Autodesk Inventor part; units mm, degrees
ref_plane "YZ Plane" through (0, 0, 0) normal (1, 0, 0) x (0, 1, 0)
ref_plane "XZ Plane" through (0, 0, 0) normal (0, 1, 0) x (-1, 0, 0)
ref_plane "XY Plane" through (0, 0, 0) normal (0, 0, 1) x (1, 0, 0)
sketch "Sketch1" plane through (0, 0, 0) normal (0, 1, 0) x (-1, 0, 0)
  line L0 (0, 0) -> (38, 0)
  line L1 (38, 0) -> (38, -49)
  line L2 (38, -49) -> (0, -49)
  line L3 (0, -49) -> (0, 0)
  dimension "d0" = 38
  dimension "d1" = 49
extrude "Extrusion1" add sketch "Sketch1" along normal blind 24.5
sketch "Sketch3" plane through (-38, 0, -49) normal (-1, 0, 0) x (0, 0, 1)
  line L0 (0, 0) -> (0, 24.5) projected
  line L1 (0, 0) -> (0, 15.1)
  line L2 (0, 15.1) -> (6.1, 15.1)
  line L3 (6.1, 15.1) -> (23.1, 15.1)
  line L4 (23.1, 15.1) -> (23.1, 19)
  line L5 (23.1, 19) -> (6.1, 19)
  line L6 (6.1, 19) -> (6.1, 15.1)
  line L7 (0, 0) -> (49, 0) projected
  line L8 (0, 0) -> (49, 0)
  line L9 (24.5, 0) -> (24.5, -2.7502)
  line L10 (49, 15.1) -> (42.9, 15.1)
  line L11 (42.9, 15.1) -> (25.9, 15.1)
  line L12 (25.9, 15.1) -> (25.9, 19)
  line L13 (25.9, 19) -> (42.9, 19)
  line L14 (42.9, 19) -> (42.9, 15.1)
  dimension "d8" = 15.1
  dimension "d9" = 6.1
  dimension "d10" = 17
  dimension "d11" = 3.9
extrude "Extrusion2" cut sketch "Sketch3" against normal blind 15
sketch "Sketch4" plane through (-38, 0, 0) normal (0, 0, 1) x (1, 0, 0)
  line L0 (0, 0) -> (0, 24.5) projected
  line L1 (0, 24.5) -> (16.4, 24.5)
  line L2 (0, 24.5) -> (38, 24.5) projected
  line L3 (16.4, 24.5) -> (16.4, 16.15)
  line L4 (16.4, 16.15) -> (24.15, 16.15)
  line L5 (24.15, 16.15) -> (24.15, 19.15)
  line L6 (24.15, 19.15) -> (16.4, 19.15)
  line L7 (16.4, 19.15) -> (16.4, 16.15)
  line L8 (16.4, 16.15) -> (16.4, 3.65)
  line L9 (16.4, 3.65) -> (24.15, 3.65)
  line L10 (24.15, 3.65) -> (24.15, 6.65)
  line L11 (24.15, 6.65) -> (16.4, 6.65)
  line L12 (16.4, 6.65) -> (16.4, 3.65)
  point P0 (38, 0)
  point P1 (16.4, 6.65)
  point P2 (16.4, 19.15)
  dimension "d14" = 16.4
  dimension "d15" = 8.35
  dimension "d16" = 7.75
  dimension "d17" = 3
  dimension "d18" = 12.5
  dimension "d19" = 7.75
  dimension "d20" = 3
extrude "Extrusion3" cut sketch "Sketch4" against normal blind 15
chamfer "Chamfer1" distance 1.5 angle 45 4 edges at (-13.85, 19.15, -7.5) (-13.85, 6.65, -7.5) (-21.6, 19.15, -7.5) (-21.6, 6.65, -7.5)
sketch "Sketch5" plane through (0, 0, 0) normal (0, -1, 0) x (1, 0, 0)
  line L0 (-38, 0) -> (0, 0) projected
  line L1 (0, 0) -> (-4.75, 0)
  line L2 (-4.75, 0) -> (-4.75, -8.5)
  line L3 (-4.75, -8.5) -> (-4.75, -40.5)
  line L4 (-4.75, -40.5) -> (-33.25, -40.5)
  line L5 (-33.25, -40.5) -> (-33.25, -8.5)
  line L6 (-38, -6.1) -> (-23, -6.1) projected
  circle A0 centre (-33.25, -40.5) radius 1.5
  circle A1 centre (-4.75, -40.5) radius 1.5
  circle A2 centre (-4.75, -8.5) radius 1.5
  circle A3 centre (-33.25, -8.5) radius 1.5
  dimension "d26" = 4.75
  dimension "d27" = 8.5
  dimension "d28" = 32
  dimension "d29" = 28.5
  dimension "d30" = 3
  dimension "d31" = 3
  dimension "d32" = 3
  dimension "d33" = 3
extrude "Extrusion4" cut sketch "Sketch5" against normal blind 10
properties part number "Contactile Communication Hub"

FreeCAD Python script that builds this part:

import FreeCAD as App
import Part
import Sketcher

V = App.Vector
Q = App.Units.Quantity


def edges_at(feature, points):
    """Names of the edges that pass closest to the given points."""
    edges = feature.Shape.Edges
    near = lambda p: min(range(len(edges)), key=lambda i: edges[i].distToShape(Part.Vertex(*p))[0])
    return sorted({f"Edge{near(p) + 1}" for p in points})


def add_polygon(sketch, points):
    """Adds a closed chain of lines whose ends are joined by coincident constraints."""
    first, n = sketch.GeometryCount, len(points)
    for a, b in zip(points, points[1:] + points[:1]):
        sketch.addGeometry(Part.LineSegment(App.Vector(*a, 0), App.Vector(*b, 0)), False)
    for i in range(n):
        sketch.addConstraint(Sketcher.Constraint("Coincident", first + i, 2, first + (i + 1) % n, 1))

doc = App.newDocument("Part")
body = doc.addObject("PartDesign::Body", "Body")

sketch1 = body.newObject("Sketcher::SketchObject", "Sketch")
sketch1.AttachmentSupport = (doc.getObject("XZ_Plane"), [""])
sketch1.MapMode = "FlatFace"
add_polygon(sketch1, [(-38, 0), (0, 0), (0, -49), (-38, -49)])
sketch1.addConstraint([
    Sketcher.Constraint("Horizontal", 0),
    Sketcher.Constraint("Vertical", 1),
    Sketcher.Constraint("Horizontal", 2),
    Sketcher.Constraint("Vertical", 3),
    Sketcher.Constraint("Coincident", 0, 2, -1, 1),
    Sketcher.Constraint("DistanceX", 0, 1, 0, 2, Q("38 mm")),
    Sketcher.Constraint("DistanceY", 1, 2, 1, 1, Q("49 mm")),
])
pad1 = body.newObject("PartDesign::Pad", "Pad")
pad1.Profile = sketch1
pad1.Length = 24.5
pad1.Reversed = True

sketch2 = body.newObject("Sketcher::SketchObject", "Sketch001")
sketch2.AttachmentSupport = (doc.getObject("YZ_Plane"), [""])
sketch2.MapMode = "FlatFace"
sketch2.AttachmentOffset = App.Placement(V(0, 0, -38), App.Rotation())
add_polygon(sketch2, [(19, -42.9), (15.1, -42.9), (15.1, -25.9), (19, -25.9)])
add_polygon(sketch2, [(15.1, -23.1), (15.1, -6.1), (19, -6.1), (19, -23.1)])
sketch2.addConstraint([
    Sketcher.Constraint("Horizontal", 0),
    Sketcher.Constraint("Vertical", 1),
    Sketcher.Constraint("Horizontal", 2),
    Sketcher.Constraint("Vertical", 3),
    Sketcher.Constraint("Vertical", 4),
    Sketcher.Constraint("Horizontal", 5),
    Sketcher.Constraint("Vertical", 6),
    Sketcher.Constraint("Horizontal", 7),
    Sketcher.Constraint("Vertical", 1, 2, 4, 2),
    Sketcher.Constraint("Vertical", 3, 2, 5, 2),
    Sketcher.Constraint("Equal", 3, 4),
    Sketcher.Constraint("DistanceY", 1, 1, 1, 2, Q("17 mm")),
    Sketcher.Constraint("DistanceX", 0, 2, 0, 1, Q("3.9 mm")),
    Sketcher.Constraint("DistanceX", -1, 1, 0, 2, Q("15.1 mm")),
    Sketcher.Constraint("DistanceY", 4, 2, -1, 1, Q("6.1 mm")),
    Sketcher.Constraint("DistanceY", 0, 2, -1, 1, Q("42.9 mm")),
])
pocket1 = body.newObject("PartDesign::Pocket", "Pocket")
pocket1.Profile = sketch2
pocket1.Length = 15
pocket1.Reversed = True

sketch3 = body.newObject("Sketcher::SketchObject", "Sketch002")
sketch3.AttachmentSupport = (doc.getObject("XY_Plane"), [""])
sketch3.MapMode = "FlatFace"
add_polygon(sketch3, [(-13.85, 19.15), (-21.6, 19.15), (-21.6, 16.15), (-13.85, 16.15)])
add_polygon(sketch3, [(-13.85, 6.65), (-21.6, 6.65), (-21.6, 3.65), (-13.85, 3.65)])
sketch3.addConstraint([
    Sketcher.Constraint("Horizontal", 0),
    Sketcher.Constraint("Vertical", 1),
    Sketcher.Constraint("Horizontal", 2),
    Sketcher.Constraint("Vertical", 3),
    Sketcher.Constraint("Horizontal", 4),
    Sketcher.Constraint("Vertical", 5),
    Sketcher.Constraint("Horizontal", 6),
    Sketcher.Constraint("Vertical", 7),
    Sketcher.Constraint("Vertical", 1, 2, 4, 2),
    Sketcher.Constraint("Vertical", 3, 2, 6, 2),
    Sketcher.Constraint("Equal", 3, 5),
    Sketcher.Constraint("DistanceY", 1, 2, 1, 1, Q("3 mm")),
    Sketcher.Constraint("DistanceX", 0, 2, 0, 1, Q("7.75 mm")),
    Sketcher.Constraint("DistanceY", 4, 2, 0, 2, Q("12.5 mm")),
    Sketcher.Constraint("DistanceX", 0, 2, -1, 1, Q("21.6 mm")),
    Sketcher.Constraint("DistanceY", -1, 1, 0, 2, Q("19.15 mm")),
])
pocket2 = body.newObject("PartDesign::Pocket", "Pocket001")
pocket2.Profile = sketch3
pocket2.Length = 15
doc.recompute()

chamfer = body.newObject("PartDesign::Chamfer", "Chamfer")
chamfer.Base = (pocket2, edges_at(pocket2, [
    (-13.85, 19.15, -7.5),
    (-13.85, 6.65, -7.5),
    (-21.6, 19.15, -7.5),
    (-21.6, 6.65, -7.5),
]))
chamfer.Size = 1.5

sketch4 = body.newObject("Sketcher::SketchObject", "Sketch003")
sketch4.AttachmentSupport = (doc.getObject("XZ_Plane"), [""])
sketch4.MapMode = "FlatFace"
sketch4.addGeometry([
    Part.Circle(V(-4.75, -8.5, 0), V(0, 0, 1), 1.5),
    Part.Circle(V(-33.25, -8.5, 0), V(0, 0, 1), 1.5),
    Part.Circle(V(-33.25, -40.5, 0), V(0, 0, 1), 1.5),
    Part.Circle(V(-4.75, -40.5, 0), V(0, 0, 1), 1.5),
], False)
sketch4.addConstraint([
    Sketcher.Constraint("Equal", 0, 1),
    Sketcher.Constraint("Equal", 1, 2),
    Sketcher.Constraint("Equal", 2, 3),
    Sketcher.Constraint("Horizontal", 0, 3, 1, 3),
    Sketcher.Constraint("Horizontal", 2, 3, 3, 3),
    Sketcher.Constraint("Vertical", 1, 3, 2, 3),
    Sketcher.Constraint("Vertical", 0, 3, 3, 3),
    Sketcher.Constraint("Diameter", 0, Q("3 mm")),
    Sketcher.Constraint("DistanceY", 2, 3, 1, 3, Q("32 mm")),
    Sketcher.Constraint("DistanceY", 0, 3, -1, 1, Q("8.5 mm")),
    Sketcher.Constraint("DistanceX", 1, 3, 0, 3, Q("28.5 mm")),
    Sketcher.Constraint("DistanceX", 0, 3, -1, 1, Q("4.75 mm")),
])
pocket3 = body.newObject("PartDesign::Pocket", "Pocket002")
pocket3.Profile = sketch4
pocket3.Length = 10

doc.recompute()
